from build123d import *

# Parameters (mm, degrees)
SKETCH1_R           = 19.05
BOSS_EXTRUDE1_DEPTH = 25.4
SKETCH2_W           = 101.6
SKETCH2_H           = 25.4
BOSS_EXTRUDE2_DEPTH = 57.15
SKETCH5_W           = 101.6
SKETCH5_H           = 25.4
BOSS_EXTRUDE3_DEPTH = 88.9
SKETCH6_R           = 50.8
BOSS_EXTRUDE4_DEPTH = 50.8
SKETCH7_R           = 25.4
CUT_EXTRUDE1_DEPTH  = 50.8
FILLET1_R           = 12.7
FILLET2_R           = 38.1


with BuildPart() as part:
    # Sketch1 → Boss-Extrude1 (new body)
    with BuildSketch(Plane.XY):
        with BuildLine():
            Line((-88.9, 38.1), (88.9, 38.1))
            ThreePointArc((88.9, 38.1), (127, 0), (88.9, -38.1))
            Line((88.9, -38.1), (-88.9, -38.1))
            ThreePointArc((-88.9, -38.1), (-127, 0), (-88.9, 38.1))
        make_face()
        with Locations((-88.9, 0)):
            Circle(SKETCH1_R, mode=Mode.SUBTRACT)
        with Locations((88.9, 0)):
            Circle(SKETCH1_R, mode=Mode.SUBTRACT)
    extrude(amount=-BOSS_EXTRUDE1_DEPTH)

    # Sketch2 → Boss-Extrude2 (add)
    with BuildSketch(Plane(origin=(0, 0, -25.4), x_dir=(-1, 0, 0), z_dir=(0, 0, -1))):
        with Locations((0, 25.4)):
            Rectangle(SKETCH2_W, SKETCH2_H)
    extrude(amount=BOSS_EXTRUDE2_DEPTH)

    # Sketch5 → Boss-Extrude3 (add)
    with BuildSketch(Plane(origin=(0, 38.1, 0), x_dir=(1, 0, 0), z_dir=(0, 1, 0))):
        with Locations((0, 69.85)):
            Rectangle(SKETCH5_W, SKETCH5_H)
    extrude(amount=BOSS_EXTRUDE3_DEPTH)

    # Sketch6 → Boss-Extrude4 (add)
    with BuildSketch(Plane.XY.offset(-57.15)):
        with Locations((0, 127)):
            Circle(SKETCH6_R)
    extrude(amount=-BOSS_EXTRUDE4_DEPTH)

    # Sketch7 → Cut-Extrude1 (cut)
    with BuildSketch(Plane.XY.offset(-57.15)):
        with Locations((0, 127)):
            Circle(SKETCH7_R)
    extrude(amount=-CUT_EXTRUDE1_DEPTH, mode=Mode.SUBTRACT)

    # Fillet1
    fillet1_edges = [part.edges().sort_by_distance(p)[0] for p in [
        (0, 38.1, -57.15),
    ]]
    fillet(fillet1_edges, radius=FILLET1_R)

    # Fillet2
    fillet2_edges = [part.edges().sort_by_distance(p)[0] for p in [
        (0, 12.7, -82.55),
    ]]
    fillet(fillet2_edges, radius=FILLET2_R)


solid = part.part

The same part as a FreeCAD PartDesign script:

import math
import FreeCAD as App
import Part
import Sketcher
from FreeCAD import Vector
Q = App.Units.Quantity


def edges_at(feature, points):
    """Names of the edges that pass closest to the given points."""
    edges = feature.Shape.Edges
    near = lambda p: min(range(len(edges)), key=lambda i: edges[i].distToShape(Part.Vertex(*p))[0])
    return sorted({f"Edge{near(p) + 1}" for p in points})


def add_polygon(sketch, points):
    """Adds a closed chain of lines whose ends are joined by coincident constraints."""
    first, n = sketch.GeometryCount, len(points)
    for a, b in zip(points, points[1:] + points[:1]):
        sketch.addGeometry(Part.LineSegment(App.Vector(*a, 0), App.Vector(*b, 0)), False)
    for i in range(n):
        sketch.addConstraint(Sketcher.Constraint("Coincident", first + i, 2, first + (i + 1) % n, 1))

doc = App.newDocument("Part")
params = doc.addObject("Spreadsheet::Sheet", "Params")
for row, (alias, value) in enumerate([
    ("sketch1_diameter", "1.5 in"),
    ("sketch1_radius", "1.5 in"),
    ("sketch1_width", "7 in"),
    ("pad1_length", "1 in"),
    ("sketch2_width", "4 in"),
    ("sketch2_height", "1 in"),
    ("pad2_length", "2.25 in"),
    ("sketch3_width", "4 in"),
    ("sketch3_height", "1 in"),
    ("pad3_length", "3.5 in"),
    ("sketch4_diameter", "4 in"),
    ("pad4_length", "2 in"),
    ("sketch5_diameter", "2 in"),
    ("pocket1_length", "2 in"),
    ("fillet_radius", "0.5 in"),
    ("fillet2_radius", "1.5 in"),
], start=1):
    params.set(f"A{row}", alias)
    params.set(f"B{row}", "=" + value)
    params.setAlias(f"B{row}", alias)

body = doc.addObject("PartDesign::Body", "Body")

sketch1 = doc.addObject("Sketcher::SketchObject", "Sketch")
body.addObject(sketch1)
sketch1.AttachmentSupport = (doc.XY_Plane, [""])
sketch1.MapMode = "FlatFace"
sketch1.addGeometry([
    Part.LineSegment(Vector(89, 38, 0), Vector(-89, 38, 0)),
    Part.ArcOfCircle(Part.Circle(Vector(-89, 0, 0), Vector(0, 0, 1), 38), math.radians(90), math.radians(270)),
    Part.LineSegment(Vector(-89, -38, 0), Vector(89, -38, 0)),
    Part.ArcOfCircle(Part.Circle(Vector(89, 0, 0), Vector(0, 0, 1), 38), math.radians(-90), math.radians(90)),
    Part.Circle(Vector(89, 0, 0), Vector(0, 0, 1), 19),
    Part.Circle(Vector(-89, 0, 0), Vector(0, 0, 1), 19),
], False)
sketch1.addConstraint([
    Sketcher.Constraint("Tangent", 0, 2, 1, 1),
    Sketcher.Constraint("Tangent", 1, 2, 2, 1),
    Sketcher.Constraint("Tangent", 2, 2, 3, 1),
    Sketcher.Constraint("Tangent", 3, 2, 0, 1),
    Sketcher.Constraint("Horizontal", 0),
    Sketcher.Constraint("Horizontal", 2),
    Sketcher.Constraint("Coincident", 4, 3, 3, 3),
    Sketcher.Constraint("Coincident", 5, 3, 1, 3),
    Sketcher.Constraint("Equal", 4, 5),
    Sketcher.Constraint("Symmetric", 1, 3, 3, 3, -1, 1),
    Sketcher.Constraint("Diameter", 4, Q("1.5 in")),
    Sketcher.Constraint("Radius", 1, Q("1.5 in")),
    Sketcher.Constraint("DistanceX", 0, 2, 0, 1, Q("7 in")),
])
sketch1.setExpression("Constraints[10]", "Params.sketch1_diameter")
sketch1.setExpression("Constraints[11]", "Params.sketch1_radius")
sketch1.setExpression("Constraints[12]", "Params.sketch1_width")
pad1 = doc.addObject("PartDesign::Pad", "Pad")
body.addObject(pad1)
pad1.Profile = sketch1
pad1.setExpression("Length", "Params.pad1_length")
pad1.Reversed = True

sketch2 = doc.addObject("Sketcher::SketchObject", "Sketch001")
body.addObject(sketch2)
sketch2.AttachmentSupport = (doc.XY_Plane, [""])
sketch2.MapMode = "FlatFace"
sketch2.AttachmentOffset = App.Placement(Vector(0, 0, -1 * 25.4), App.Rotation())
add_polygon(sketch2, [(51, 38), (51, 13), (-51, 13), (-51, 38)])
sketch2.addConstraint([
    Sketcher.Constraint("Vertical", 0),
    Sketcher.Constraint("Horizontal", 1),
    Sketcher.Constraint("Vertical", 2),
    Sketcher.Constraint("Horizontal", 3),
    Sketcher.Constraint("DistanceX", 1, 2, 1, 1, Q("4 in")),
    Sketcher.Constraint("DistanceY", 0, 2, 0, 1, Q("1 in")),
    Sketcher.Constraint("DistanceX", -1, 1, 0, 2, Q("2 in")),
    Sketcher.Constraint("DistanceY", -1, 1, 0, 2, Q("0.5 in")),
])
sketch2.setExpression("Constraints[8]", "Params.sketch2_width")
sketch2.setExpression("Constraints[9]", "Params.sketch2_height")
pad2 = doc.addObject("PartDesign::Pad", "Pad001")
body.addObject(pad2)
pad2.Profile = sketch2
pad2.setExpression("Length", "Params.pad2_length")
pad2.Reversed = True

sketch3 = doc.addObject("Sketcher::SketchObject", "Sketch002")
body.addObject(sketch3)
sketch3.AttachmentSupport = (doc.XZ_Plane, [""])
sketch3.MapMode = "FlatFace"
sketch3.AttachmentOffset = App.Placement(Vector(0, 0, -1.5 * 25.4), App.Rotation())
add_polygon(sketch3, [(-51, -83), (-51, -57), (51, -57), (51, -83)])
sketch3.addConstraint([
    Sketcher.Constraint("Vertical", 0),
    Sketcher.Constraint("Horizontal", 1),
    Sketcher.Constraint("Vertical", 2),
    Sketcher.Constraint("Horizontal", 3),
    Sketcher.Constraint("DistanceX", 1, 1, 1, 2, Q("4 in")),
    Sketcher.Constraint("DistanceY", 0, 1, 0, 2, Q("1 in")),
    Sketcher.Constraint("DistanceX", 0, 2, -1, 1, Q("2 in")),
    Sketcher.Constraint("DistanceY", 0, 2, -1, 1, Q("2.25 in")),
])
sketch3.setExpression("Constraints[8]", "Params.sketch3_width")
sketch3.setExpression("Constraints[9]", "Params.sketch3_height")
pad3 = doc.addObject("PartDesign::Pad", "Pad002")
body.addObject(pad3)
pad3.Profile = sketch3
pad3.setExpression("Length", "Params.pad3_length")
pad3.Reversed = True

sketch4 = doc.addObject("Sketcher::SketchObject", "Sketch003")
body.addObject(sketch4)
sketch4.AttachmentSupport = (doc.XY_Plane, [""])
sketch4.MapMode = "FlatFace"
sketch4.AttachmentOffset = App.Placement(Vector(0, 0, -2.25 * 25.4), App.Rotation())
sketch4.addGeometry(Part.Circle(Vector(0, 127, 0), Vector(0, 0, 1), 51), False)
sketch4.addConstraint([
    Sketcher.Constraint("PointOnObject", 0, 3, -2),
    Sketcher.Constraint("Diameter", 0, Q("4 in")),
    Sketcher.Constraint("DistanceY", -1, 1, 0, 3, Q("5 in")),
])
sketch4.setExpression("Constraints[1]", "Params.sketch4_diameter")
pad4 = doc.addObject("PartDesign::Pad", "Pad003")
body.addObject(pad4)
pad4.Profile = sketch4
pad4.setExpression("Length", "Params.pad4_length")
pad4.Reversed = True

sketch5 = doc.addObject("Sketcher::SketchObject", "Sketch004")
body.addObject(sketch5)
sketch5.AttachmentSupport = (doc.XY_Plane, [""])
sketch5.MapMode = "FlatFace"
sketch5.AttachmentOffset = App.Placement(Vector(0, 0, -2.25 * 25.4), App.Rotation())
sketch5.addGeometry(Part.Circle(Vector(0, 127, 0), Vector(0, 0, 1), 25), False)
sketch5.addConstraint([
    Sketcher.Constraint("PointOnObject", 0, 3, -2),
    Sketcher.Constraint("Diameter", 0, Q("2 in")),
    Sketcher.Constraint("DistanceY", -1, 1, 0, 3, Q("5 in")),
])
sketch5.setExpression("Constraints[1]", "Params.sketch5_diameter")
pocket1 = doc.addObject("PartDesign::Pocket", "Pocket")
body.addObject(pocket1)
pocket1.Profile = sketch5
pocket1.setExpression("Length", "Params.pocket1_length")
doc.recompute()

fillet = doc.addObject("PartDesign::Fillet", "Fillet")
body.addObject(fillet)
fillet.Base = (pocket1, edges_at(pocket1, [(0, 38.1, -57.15)]))
fillet.setExpression("Radius", "Params.fillet_radius")
doc.recompute()

fillet2 = doc.addObject("PartDesign::Fillet", "Fillet001")
body.addObject(fillet2)
fillet2.Base = (fillet, edges_at(fillet, [(0, 12.7, -82.55)]))
fillet2.setExpression("Radius", "Params.fillet2_radius")

doc.recompute()
